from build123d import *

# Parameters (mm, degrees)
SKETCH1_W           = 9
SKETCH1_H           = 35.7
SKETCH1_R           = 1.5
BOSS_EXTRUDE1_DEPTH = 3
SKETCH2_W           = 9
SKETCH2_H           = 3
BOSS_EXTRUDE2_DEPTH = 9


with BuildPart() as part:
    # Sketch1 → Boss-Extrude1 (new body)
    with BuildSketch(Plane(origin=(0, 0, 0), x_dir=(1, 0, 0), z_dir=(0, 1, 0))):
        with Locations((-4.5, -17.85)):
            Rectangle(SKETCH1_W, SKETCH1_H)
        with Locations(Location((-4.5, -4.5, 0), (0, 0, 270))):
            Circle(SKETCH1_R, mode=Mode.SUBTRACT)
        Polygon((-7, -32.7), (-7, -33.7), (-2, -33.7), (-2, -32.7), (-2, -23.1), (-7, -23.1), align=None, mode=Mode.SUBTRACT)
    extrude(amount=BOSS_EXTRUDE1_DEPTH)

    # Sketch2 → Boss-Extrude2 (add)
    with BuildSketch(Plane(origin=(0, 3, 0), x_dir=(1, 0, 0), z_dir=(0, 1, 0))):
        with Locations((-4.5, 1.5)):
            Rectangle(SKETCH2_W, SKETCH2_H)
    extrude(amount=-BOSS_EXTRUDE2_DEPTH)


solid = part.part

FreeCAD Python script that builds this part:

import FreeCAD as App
import Part
import Sketcher


def add_polygon(sketch, points):
    """Adds a closed chain of lines whose ends are joined by coincident constraints."""
    first, n = sketch.GeometryCount, len(points)
    for a, b in zip(points, points[1:] + points[:1]):
        sketch.addGeometry(Part.LineSegment(App.Vector(*a, 0), App.Vector(*b, 0)), False)
    for i in range(n):
        sketch.addConstraint(Sketcher.Constraint("Coincident", first + i, 2, first + (i + 1) % n, 1))

doc = App.newDocument("Part")
body = doc.addObject("PartDesign::Body", "Body")

# Sketch on XZ plane
sketch1 = doc.addObject("Sketcher::SketchObject", "Sketch")
body.addObject(sketch1)
sketch1.AttachmentSupport = (doc.XZ_Plane, [""])
sketch1.MapMode = "FlatFace"
add_polygon(sketch1, [(-9, 0), (-9, 35.7), (0, 35.7), (0, 0)])  # lines 0-3
add_polygon(sketch1, [(-7, 33.7), (-7, 23.1), (-2, 23.1), (-2, 33.7)])  # lines 4-7
sketch1.addGeometry(Part.Circle(App.Vector(-4.5, 4.5, 0), App.Vector(0, 0, 1), 1.5), False)  # 8
sketch1.addConstraint([
    Sketcher.Constraint("Vertical", 0),
    Sketcher.Constraint("Horizontal", 1),
    Sketcher.Constraint("Vertical", 2),
    Sketcher.Constraint("Horizontal", 3),
    Sketcher.Constraint("Vertical", 4),
    Sketcher.Constraint("Horizontal", 5),
    Sketcher.Constraint("Vertical", 6),
    Sketcher.Constraint("Horizontal", 7),
    Sketcher.Constraint("Coincident", 2, 2, -1, 1),
    Sketcher.Constraint("Diameter", 8, 3.0),
    Sketcher.Constraint("DistanceX", 1, 1, 1, 2, 9.0),
    Sketcher.Constraint("DistanceX", 5, 1, 5, 2, 5.0),
    Sketcher.Constraint("DistanceY", 0, 1, 0, 2, 35.7),
    Sketcher.Constraint("DistanceY", 4, 2, 4, 1, 10.6),
    Sketcher.Constraint("DistanceX", 4, 2, -1, 1, 7.0),
    Sketcher.Constraint("DistanceY", 6, 2, 1, 2, 2.0),
    Sketcher.Constraint("DistanceX", 8, 3, -1, 1, 4.5),
    Sketcher.Constraint("DistanceY", -1, 1, 8, 3, 4.5),
])
pad1 = doc.addObject("PartDesign::Pad", "Pad")
body.addObject(pad1)
pad1.Profile = sketch1
pad1.Length = 3
pad1.Reversed = True

# Sketch on XZ plane
sketch2 = doc.addObject("Sketcher::SketchObject", "Sketch001")
body.addObject(sketch2)
sketch2.AttachmentSupport = (doc.XZ_Plane, [""])
sketch2.MapMode = "FlatFace"
sketch2.AttachmentOffset = App.Placement(App.Vector(0, 0, -3), App.Rotation())
add_polygon(sketch2, [(-9, -3), (-9, 0), (0, 0), (0, -3)])  # lines 0-3
sketch2.addConstraint([
    Sketcher.Constraint("Vertical", 0),
    Sketcher.Constraint("Horizontal", 1),
    Sketcher.Constraint("Vertical", 2),
    Sketcher.Constraint("Horizontal", 3),
    Sketcher.Constraint("Coincident", 1, 2, -1, 1),
    Sketcher.Constraint("DistanceX", 1, 1, 1, 2, 9.0),
    Sketcher.Constraint("DistanceY", 0, 1, 0, 2, 3.0),
])
pad2 = doc.addObject("PartDesign::Pad", "Pad001")
body.addObject(pad2)
pad2.Profile = sketch2
pad2.Length = 9

doc.recompute()
